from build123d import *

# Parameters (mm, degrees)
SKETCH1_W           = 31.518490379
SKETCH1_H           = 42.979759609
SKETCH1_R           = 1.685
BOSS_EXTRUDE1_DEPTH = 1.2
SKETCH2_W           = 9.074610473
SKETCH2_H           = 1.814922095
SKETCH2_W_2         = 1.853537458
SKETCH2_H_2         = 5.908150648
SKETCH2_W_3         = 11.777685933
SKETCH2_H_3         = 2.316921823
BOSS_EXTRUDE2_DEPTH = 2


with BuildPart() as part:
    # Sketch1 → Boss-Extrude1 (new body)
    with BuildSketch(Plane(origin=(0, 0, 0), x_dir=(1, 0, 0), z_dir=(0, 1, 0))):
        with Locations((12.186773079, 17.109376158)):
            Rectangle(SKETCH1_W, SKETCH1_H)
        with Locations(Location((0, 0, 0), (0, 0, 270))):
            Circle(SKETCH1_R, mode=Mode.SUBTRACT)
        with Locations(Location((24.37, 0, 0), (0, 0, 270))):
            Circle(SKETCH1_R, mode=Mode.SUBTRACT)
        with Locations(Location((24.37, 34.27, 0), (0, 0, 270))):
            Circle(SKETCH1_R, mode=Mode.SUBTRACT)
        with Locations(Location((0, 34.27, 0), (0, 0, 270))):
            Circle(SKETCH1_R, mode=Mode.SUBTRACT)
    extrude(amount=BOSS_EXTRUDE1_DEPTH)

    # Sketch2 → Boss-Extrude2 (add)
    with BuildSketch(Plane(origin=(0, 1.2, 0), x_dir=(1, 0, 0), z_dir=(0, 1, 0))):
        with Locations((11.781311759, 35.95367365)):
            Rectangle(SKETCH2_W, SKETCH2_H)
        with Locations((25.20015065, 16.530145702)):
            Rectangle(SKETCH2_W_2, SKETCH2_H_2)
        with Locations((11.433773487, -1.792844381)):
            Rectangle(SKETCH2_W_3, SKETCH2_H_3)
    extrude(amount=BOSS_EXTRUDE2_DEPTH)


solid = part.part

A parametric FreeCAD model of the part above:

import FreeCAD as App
import Part
import Sketcher

doc = App.newDocument("Part")
body = doc.addObject("PartDesign::Body", "Body")

# Sketch on XZ plane
sketch1 = body.newObject("Sketcher::SketchObject", "Sketch")
sketch1.AttachmentSupport = (doc.getObject("XZ_Plane"), [""])
sketch1.MapMode = "FlatFace"
sketch1.addGeometry([
    Part.LineSegment(App.Vector(-3.6, -38.6, 0), App.Vector(-3.6, 4.4, 0)),  # 0
    Part.LineSegment(App.Vector(-3.6, 4.4, 0), App.Vector(27.9, 4.4, 0)),  # 1
    Part.LineSegment(App.Vector(27.9, 4.4, 0), App.Vector(27.9, -38.6, 0)),  # 2
    Part.LineSegment(App.Vector(27.9, -38.6, 0), App.Vector(-3.6, -38.6, 0)),  # 3
    Part.Circle(App.Vector(0, 0, 0), App.Vector(0, 0, 1), 1.7),  # 4
    Part.Circle(App.Vector(24.4, 0, 0), App.Vector(0, 0, 1), 1.7),  # 5
    Part.Circle(App.Vector(0, -34.3, 0), App.Vector(0, 0, 1), 1.7),  # 6
    Part.Circle(App.Vector(24.4, -34.3, 0), App.Vector(0, 0, 1), 1.7),  # 7
], False)
sketch1.addConstraint([
    Sketcher.Constraint("Coincident", 0, 2, 1, 1),
    Sketcher.Constraint("Coincident", 1, 2, 2, 1),
    Sketcher.Constraint("Coincident", 2, 2, 3, 1),
    Sketcher.Constraint("Coincident", 3, 2, 0, 1),
    Sketcher.Constraint("Vertical", 0),
    Sketcher.Constraint("Horizontal", 1),
    Sketcher.Constraint("Vertical", 2),
    Sketcher.Constraint("Horizontal", 3),
    Sketcher.Constraint("Coincident", 4, 3, -1, 1),
    Sketcher.Constraint("Equal", 4, 5),
    Sketcher.Constraint("Equal", 5, 6),
    Sketcher.Constraint("Equal", 6, 7),
    Sketcher.Constraint("PointOnObject", 5, 3, -1),
    Sketcher.Constraint("PointOnObject", 6, 3, -2),
    Sketcher.Constraint("Horizontal", 6, 3, 7, 3),
    Sketcher.Constraint("Vertical", 5, 3, 7, 3),
    Sketcher.Constraint("Diameter", 4, 3.37),
    Sketcher.Constraint("DistanceX", -1, 1, 5, 3, 24.37),
    Sketcher.Constraint("DistanceY", 6, 3, -1, 1, 34.27),
    Sketcher.Constraint("DistanceX", 1, 1, 1, 2, 31.51849),
    Sketcher.Constraint("DistanceY", 0, 1, 0, 2, 42.97976),
    Sketcher.Constraint("DistanceX", -1, 1, 1, 2, 27.946018),
    Sketcher.Constraint("DistanceY", -1, 1, 0, 2, 4.380504),
])
pad1 = body.newObject("PartDesign::Pad", "Pad")
pad1.Profile = sketch1
pad1.Length = 1.2
pad1.Reversed = True

# Sketch on XZ plane
sketch2 = body.newObject("Sketcher::SketchObject", "Sketch001")
sketch2.AttachmentSupport = (doc.getObject("XZ_Plane"), [""])
sketch2.MapMode = "FlatFace"
sketch2.AttachmentOffset = App.Placement(App.Vector(0, 0, -1.2), App.Rotation())
sketch2.addGeometry([
    Part.LineSegment(App.Vector(7.2, -36.9, 0), App.Vector(7.2, -35, 0)),  # 0
    Part.LineSegment(App.Vector(7.2, -35, 0), App.Vector(16.3, -35, 0)),  # 1
    Part.LineSegment(App.Vector(16.3, -35, 0), App.Vector(16.3, -36.9, 0)),  # 2
    Part.LineSegment(App.Vector(16.3, -36.9, 0), App.Vector(7.2, -36.9, 0)),  # 3
    Part.LineSegment(App.Vector(24.3, -19.5, 0), App.Vector(24.3, -13.6, 0)),  # 4
    Part.LineSegment(App.Vector(24.3, -13.6, 0), App.Vector(26.1, -13.6, 0)),  # 5
    Part.LineSegment(App.Vector(26.1, -13.6, 0), App.Vector(26.1, -19.5, 0)),  # 6
    Part.LineSegment(App.Vector(26.1, -19.5, 0), App.Vector(24.3, -19.5, 0)),  # 7
    Part.LineSegment(App.Vector(5.5, 0.6, 0), App.Vector(5.5, 3, 0)),  # 8
    Part.LineSegment(App.Vector(5.5, 3, 0), App.Vector(17.3, 3, 0)),  # 9
    Part.LineSegment(App.Vector(17.3, 3, 0), App.Vector(17.3, 0.6, 0)),  # 10
    Part.LineSegment(App.Vector(17.3, 0.6, 0), App.Vector(5.5, 0.6, 0)),  # 11
], False)
sketch2.addConstraint([
    Sketcher.Constraint("Coincident", 0, 2, 1, 1),
    Sketcher.Constraint("Coincident", 1, 2, 2, 1),
    Sketcher.Constraint("Coincident", 2, 2, 3, 1),
    Sketcher.Constraint("Coincident", 3, 2, 0, 1),
    Sketcher.Constraint("Coincident", 4, 2, 5, 1),
    Sketcher.Constraint("Coincident", 5, 2, 6, 1),
    Sketcher.Constraint("Coincident", 6, 2, 7, 1),
    Sketcher.Constraint("Coincident", 7, 2, 4, 1),
    Sketcher.Constraint("Coincident", 8, 2, 9, 1),
    Sketcher.Constraint("Coincident", 9, 2, 10, 1),
    Sketcher.Constraint("Coincident", 10, 2, 11, 1),
    Sketcher.Constraint("Coincident", 11, 2, 8, 1),
    Sketcher.Constraint("Vertical", 0),
    Sketcher.Constraint("Horizontal", 1),
    Sketcher.Constraint("Vertical", 2),
    Sketcher.Constraint("Horizontal", 3),
    Sketcher.Constraint("Vertical", 4),
    Sketcher.Constraint("Horizontal", 5),
    Sketcher.Constraint("Vertical", 6),
    Sketcher.Constraint("Horizontal", 7),
    Sketcher.Constraint("Vertical", 8),
    Sketcher.Constraint("Horizontal", 9),
    Sketcher.Constraint("Vertical", 10),
    Sketcher.Constraint("Horizontal", 11),
    Sketcher.Constraint("DistanceX", 1, 1, 1, 2, 9.07461),
    Sketcher.Constraint("DistanceY", 4, 1, 4, 2, 5.908151),
    Sketcher.Constraint("DistanceY", 8, 1, 8, 2, 2.316922),
    Sketcher.Constraint("DistanceX", 5, 1, 5, 2, 1.853537),
    Sketcher.Constraint("DistanceX", 9, 1, 9, 2, 11.777686),
    Sketcher.Constraint("DistanceY", 0, 1, 0, 2, 1.814922),
    Sketcher.Constraint("DistanceX", -1, 1, 4, 2, 24.273382),
    Sketcher.Constraint("DistanceY", 4, 2, -1, 1, 13.57607),
    Sketcher.Constraint("DistanceX", -1, 1, 8, 2, 5.544931),
    Sketcher.Constraint("DistanceY", 1, 2, 6, 2, 15.561992),
    Sketcher.Constraint("DistanceX", -1, 1, 0, 2, 7.244007),
    Sketcher.Constraint("DistanceY", -1, 1, 8, 2, 2.951305),
])
pad2 = body.newObject("PartDesign::Pad", "Pad001")
pad2.Profile = sketch2
pad2.Length = 2
pad2.Reversed = True

doc.recompute()
